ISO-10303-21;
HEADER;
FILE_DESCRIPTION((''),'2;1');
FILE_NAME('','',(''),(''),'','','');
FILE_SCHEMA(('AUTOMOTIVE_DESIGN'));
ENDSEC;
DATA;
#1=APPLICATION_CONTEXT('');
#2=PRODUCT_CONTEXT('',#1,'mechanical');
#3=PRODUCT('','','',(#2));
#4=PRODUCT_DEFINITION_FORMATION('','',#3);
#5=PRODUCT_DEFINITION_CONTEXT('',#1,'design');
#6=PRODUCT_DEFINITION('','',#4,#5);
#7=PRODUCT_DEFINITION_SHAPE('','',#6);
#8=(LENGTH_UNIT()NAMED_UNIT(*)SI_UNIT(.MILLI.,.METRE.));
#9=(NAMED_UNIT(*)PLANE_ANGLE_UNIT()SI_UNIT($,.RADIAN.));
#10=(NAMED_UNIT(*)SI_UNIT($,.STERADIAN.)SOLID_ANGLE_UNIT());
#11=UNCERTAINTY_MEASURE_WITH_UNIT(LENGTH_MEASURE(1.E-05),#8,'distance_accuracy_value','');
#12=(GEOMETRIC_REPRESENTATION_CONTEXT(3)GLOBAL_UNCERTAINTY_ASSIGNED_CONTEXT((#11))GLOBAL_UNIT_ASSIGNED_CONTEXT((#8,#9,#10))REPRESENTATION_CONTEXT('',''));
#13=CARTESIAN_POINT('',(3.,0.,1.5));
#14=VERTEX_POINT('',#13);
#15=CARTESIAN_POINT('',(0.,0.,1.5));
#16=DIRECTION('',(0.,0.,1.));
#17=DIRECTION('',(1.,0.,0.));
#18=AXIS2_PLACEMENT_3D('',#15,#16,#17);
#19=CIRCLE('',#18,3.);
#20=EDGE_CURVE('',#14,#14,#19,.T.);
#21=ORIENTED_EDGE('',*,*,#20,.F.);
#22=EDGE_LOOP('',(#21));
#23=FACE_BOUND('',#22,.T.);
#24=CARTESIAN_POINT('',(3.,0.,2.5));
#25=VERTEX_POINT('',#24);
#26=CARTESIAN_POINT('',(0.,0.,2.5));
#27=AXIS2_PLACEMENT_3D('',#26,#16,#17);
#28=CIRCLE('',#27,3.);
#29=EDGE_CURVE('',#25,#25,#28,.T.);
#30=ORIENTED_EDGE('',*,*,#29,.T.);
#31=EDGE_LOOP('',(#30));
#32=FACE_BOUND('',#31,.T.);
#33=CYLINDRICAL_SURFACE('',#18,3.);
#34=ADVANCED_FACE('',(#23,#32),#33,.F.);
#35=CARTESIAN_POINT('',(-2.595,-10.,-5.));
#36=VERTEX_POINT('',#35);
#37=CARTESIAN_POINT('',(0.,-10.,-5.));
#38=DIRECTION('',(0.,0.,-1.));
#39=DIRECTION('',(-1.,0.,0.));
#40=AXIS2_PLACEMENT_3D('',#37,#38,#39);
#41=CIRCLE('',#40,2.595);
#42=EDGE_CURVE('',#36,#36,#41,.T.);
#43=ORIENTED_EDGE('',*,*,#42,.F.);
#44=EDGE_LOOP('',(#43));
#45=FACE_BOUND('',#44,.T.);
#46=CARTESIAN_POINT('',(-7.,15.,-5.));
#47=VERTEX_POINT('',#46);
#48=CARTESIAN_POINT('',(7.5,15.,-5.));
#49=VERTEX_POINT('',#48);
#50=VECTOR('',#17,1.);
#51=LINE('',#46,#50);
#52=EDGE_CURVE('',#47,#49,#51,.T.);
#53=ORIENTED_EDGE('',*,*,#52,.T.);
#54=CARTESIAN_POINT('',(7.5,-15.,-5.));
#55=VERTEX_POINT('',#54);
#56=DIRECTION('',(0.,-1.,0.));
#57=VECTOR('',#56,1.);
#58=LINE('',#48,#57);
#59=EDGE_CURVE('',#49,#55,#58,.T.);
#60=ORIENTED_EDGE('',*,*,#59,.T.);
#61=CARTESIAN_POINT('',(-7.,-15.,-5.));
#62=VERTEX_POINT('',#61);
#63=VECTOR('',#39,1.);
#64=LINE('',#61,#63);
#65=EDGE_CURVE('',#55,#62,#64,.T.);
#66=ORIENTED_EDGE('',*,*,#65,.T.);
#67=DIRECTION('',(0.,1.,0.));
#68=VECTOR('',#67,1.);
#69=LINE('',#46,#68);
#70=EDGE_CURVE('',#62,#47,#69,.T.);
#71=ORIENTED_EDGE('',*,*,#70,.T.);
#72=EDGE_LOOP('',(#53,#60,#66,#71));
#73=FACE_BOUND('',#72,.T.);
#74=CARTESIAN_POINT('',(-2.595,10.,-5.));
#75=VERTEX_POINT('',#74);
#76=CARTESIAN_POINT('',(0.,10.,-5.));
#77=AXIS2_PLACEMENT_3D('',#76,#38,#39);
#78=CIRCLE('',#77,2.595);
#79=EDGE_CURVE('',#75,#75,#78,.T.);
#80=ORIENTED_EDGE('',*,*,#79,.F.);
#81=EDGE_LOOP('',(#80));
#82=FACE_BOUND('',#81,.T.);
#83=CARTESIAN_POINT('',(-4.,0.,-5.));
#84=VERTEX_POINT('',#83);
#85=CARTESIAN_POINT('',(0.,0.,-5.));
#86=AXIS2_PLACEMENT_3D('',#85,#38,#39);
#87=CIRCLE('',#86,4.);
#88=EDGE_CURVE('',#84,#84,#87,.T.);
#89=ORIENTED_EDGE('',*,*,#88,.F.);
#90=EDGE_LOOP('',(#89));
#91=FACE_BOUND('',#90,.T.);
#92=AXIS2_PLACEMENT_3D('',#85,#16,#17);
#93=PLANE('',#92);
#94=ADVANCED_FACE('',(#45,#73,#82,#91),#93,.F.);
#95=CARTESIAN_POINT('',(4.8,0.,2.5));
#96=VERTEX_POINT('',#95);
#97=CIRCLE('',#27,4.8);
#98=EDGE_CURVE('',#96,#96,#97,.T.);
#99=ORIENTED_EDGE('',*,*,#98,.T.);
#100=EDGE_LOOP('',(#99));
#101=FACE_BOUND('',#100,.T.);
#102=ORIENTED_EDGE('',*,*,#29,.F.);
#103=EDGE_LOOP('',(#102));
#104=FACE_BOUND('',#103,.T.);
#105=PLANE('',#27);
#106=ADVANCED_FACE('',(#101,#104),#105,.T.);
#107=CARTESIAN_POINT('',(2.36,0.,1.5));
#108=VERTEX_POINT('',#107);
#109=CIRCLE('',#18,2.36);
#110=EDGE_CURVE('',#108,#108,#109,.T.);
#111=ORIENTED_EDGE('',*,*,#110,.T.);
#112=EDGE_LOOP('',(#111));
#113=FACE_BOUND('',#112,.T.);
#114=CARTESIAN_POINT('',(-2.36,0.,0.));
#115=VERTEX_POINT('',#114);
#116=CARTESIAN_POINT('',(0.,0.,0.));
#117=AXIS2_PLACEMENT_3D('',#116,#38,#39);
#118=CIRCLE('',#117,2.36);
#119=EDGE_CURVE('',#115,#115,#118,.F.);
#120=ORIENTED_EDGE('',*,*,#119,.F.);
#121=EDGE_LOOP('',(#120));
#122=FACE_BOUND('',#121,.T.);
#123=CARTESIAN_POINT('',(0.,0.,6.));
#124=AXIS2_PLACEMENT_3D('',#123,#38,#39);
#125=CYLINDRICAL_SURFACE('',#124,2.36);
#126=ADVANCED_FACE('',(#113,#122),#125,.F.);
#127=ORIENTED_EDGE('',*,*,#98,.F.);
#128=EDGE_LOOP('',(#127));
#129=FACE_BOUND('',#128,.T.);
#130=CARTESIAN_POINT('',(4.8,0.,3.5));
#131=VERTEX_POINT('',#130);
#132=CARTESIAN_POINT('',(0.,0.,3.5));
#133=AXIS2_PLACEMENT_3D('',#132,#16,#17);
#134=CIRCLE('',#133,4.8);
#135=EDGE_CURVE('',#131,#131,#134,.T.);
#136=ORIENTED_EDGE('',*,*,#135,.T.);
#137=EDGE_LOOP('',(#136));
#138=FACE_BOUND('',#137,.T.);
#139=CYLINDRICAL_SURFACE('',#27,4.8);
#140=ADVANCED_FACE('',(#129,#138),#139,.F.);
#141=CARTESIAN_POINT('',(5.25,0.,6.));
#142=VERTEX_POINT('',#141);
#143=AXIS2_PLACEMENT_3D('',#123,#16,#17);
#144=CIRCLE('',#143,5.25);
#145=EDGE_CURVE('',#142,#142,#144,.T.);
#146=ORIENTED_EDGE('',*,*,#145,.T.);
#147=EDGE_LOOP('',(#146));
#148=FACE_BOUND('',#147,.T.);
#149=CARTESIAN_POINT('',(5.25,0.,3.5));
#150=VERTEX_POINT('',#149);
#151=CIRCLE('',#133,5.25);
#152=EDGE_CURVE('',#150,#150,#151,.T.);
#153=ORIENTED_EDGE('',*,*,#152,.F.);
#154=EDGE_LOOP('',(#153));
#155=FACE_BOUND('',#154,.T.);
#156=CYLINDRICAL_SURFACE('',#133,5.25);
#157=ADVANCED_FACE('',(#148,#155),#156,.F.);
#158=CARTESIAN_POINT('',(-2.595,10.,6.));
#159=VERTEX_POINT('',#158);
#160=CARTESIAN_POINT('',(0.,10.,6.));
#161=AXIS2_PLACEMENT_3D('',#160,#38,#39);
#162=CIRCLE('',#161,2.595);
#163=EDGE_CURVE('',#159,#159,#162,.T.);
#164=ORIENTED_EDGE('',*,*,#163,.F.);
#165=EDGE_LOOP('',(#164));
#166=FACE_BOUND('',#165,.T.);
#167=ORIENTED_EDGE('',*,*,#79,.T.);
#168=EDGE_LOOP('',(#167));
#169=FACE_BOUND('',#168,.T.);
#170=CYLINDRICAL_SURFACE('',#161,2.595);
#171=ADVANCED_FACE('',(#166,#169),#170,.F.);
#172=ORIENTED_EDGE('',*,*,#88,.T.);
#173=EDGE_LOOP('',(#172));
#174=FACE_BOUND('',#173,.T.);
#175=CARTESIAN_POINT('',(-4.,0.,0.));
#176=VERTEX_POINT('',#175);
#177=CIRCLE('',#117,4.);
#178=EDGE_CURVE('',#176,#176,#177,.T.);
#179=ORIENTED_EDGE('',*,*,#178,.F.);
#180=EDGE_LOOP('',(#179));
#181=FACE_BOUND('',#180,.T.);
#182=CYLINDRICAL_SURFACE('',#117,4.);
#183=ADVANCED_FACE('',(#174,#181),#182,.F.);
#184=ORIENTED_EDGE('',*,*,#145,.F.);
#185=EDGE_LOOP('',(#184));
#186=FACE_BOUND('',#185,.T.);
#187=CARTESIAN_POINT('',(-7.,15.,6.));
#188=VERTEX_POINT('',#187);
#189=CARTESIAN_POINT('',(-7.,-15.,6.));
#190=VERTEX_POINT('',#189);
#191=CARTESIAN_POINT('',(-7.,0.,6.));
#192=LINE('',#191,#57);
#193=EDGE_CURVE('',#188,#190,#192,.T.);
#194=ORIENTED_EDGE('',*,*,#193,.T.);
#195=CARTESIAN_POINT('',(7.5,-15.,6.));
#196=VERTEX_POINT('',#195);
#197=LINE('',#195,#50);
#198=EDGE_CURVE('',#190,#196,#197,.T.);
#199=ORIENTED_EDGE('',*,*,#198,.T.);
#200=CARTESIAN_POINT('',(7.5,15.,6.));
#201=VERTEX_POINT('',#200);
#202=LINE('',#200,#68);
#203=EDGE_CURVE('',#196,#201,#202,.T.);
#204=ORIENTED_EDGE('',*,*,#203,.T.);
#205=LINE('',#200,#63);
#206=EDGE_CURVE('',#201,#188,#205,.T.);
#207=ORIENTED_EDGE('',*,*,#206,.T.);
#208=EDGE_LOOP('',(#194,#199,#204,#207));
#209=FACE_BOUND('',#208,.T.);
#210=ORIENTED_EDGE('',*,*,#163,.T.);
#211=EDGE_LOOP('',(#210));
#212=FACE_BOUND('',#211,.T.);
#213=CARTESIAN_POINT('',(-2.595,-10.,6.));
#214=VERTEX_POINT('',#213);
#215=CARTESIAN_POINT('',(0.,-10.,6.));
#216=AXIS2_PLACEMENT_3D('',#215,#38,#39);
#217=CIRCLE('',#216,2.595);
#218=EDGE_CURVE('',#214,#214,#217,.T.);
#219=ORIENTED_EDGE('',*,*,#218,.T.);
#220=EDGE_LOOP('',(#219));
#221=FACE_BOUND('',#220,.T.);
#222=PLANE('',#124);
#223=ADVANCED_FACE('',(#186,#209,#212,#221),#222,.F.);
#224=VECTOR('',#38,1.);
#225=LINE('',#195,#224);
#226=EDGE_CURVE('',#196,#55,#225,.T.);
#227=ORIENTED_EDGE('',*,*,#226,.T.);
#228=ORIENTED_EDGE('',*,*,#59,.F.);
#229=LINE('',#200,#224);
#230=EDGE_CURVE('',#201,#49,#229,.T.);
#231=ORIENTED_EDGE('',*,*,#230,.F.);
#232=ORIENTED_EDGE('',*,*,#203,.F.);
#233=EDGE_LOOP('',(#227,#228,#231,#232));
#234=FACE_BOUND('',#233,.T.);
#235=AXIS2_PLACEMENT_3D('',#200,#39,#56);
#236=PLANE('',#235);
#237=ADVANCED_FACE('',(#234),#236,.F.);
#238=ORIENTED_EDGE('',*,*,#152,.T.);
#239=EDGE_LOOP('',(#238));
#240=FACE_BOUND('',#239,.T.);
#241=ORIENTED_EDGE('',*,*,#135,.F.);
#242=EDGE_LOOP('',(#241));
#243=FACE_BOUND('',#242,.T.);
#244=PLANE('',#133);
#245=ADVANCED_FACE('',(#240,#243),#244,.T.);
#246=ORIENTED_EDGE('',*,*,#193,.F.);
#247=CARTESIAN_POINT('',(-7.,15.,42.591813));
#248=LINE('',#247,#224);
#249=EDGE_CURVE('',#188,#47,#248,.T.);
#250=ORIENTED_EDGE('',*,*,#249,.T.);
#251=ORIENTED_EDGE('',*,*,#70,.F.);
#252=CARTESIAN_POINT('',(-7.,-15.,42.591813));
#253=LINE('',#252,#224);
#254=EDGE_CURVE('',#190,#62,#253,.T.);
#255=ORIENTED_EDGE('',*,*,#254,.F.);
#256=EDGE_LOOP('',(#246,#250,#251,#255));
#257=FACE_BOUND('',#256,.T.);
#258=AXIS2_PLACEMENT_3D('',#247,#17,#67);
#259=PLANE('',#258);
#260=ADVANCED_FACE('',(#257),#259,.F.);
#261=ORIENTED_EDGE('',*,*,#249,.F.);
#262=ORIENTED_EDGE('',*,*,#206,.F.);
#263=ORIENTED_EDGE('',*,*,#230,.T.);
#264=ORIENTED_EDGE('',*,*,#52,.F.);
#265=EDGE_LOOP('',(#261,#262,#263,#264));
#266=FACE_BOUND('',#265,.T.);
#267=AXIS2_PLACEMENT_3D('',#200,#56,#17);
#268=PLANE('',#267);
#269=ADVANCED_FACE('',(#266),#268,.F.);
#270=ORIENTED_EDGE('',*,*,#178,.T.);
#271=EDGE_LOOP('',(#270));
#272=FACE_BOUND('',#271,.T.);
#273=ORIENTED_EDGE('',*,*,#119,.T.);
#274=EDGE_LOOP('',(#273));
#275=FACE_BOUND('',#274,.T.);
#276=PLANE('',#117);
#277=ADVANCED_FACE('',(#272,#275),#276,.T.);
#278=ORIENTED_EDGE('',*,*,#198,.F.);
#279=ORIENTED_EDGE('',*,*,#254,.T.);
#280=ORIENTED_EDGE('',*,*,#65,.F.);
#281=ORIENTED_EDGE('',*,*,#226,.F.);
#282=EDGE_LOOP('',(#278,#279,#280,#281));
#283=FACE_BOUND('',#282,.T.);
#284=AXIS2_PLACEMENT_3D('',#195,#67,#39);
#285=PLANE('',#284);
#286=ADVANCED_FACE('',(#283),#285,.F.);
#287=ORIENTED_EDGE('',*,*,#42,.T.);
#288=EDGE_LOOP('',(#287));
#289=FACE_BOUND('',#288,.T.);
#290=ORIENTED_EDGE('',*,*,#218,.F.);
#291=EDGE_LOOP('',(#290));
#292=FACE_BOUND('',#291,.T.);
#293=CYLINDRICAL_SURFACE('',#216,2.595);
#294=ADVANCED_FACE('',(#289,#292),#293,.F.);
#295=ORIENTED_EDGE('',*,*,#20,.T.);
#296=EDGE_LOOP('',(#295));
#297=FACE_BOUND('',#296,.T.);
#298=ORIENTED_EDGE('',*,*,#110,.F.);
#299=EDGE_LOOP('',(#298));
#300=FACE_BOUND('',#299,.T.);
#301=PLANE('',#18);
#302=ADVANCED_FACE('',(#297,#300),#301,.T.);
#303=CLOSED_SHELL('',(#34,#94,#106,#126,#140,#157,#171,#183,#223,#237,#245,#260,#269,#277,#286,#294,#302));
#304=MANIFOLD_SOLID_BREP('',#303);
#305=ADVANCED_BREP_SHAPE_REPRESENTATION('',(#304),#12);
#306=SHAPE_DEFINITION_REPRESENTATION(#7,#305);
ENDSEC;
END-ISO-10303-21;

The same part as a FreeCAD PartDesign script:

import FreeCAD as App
import Part
import Sketcher
Q = App.Units.Quantity

doc = App.newDocument("Part")
body = doc.addObject("PartDesign::Body", "Body")

# Sketch on XY plane
sketch1 = doc.addObject("Sketcher::SketchObject", "Sketch")
body.addObject(sketch1)
sketch1.AttachmentSupport = (doc.XY_Plane, [""])
sketch1.MapMode = "FlatFace"
sketch1.addGeometry([
    Part.LineSegment(App.Vector(-8, 15, 0), App.Vector(-8, -15, 0)),
    Part.LineSegment(App.Vector(-8, -15, 0), App.Vector(8, -15, 0)),
    Part.LineSegment(App.Vector(8, -15, 0), App.Vector(8, 15, 0)),
    Part.LineSegment(App.Vector(8, 15, 0), App.Vector(-8, 15, 0)),
], False)
sketch1.addConstraint([
    Sketcher.Constraint("Coincident", 0, 2, 1, 1),
    Sketcher.Constraint("Coincident", 1, 2, 2, 1),
    Sketcher.Constraint("Coincident", 2, 2, 3, 1),
    Sketcher.Constraint("Coincident", 3, 2, 0, 1),
    Sketcher.Constraint("Vertical", 0),
    Sketcher.Constraint("Horizontal", 1),
    Sketcher.Constraint("Vertical", 2),
    Sketcher.Constraint("Horizontal", 3),
    Sketcher.Constraint("Symmetric", 0, 2, 2, 2, -1, 1),
    Sketcher.Constraint("DistanceX", 1, 1, 1, 2, Q("15 mm")),
    Sketcher.Constraint("DistanceY", 0, 2, 0, 1, Q("30 mm")),
])
pad1 = doc.addObject("PartDesign::Pad", "Pad")
body.addObject(pad1)
pad1.Profile = sketch1
pad1.Length = 6

# Sketch on XY plane
sketch2 = doc.addObject("Sketcher::SketchObject", "Sketch001")
body.addObject(sketch2)
sketch2.AttachmentSupport = (doc.XY_Plane, [""])
sketch2.MapMode = "FlatFace"
sketch2.AttachmentOffset = App.Placement(App.Vector(0, 0, 6), App.Rotation())
sketch2.addGeometry(Part.Circle(App.Vector(0, 0, 0), App.Vector(0, 0, 1), 5), False)
sketch2.addConstraint([
    Sketcher.Constraint("Coincident", 0, 3, -1, 1),
    Sketcher.Constraint("Diameter", 0, Q("10.5 mm")),
])
pocket1 = doc.addObject("PartDesign::Pocket", "Pocket")
body.addObject(pocket1)
pocket1.Profile = sketch2
pocket1.Length = 2.5

# Sketch on XY plane
sketch3 = doc.addObject("Sketcher::SketchObject", "Sketch002")
body.addObject(sketch3)
sketch3.AttachmentSupport = (doc.XY_Plane, [""])
sketch3.MapMode = "FlatFace"
sketch3.AttachmentOffset = App.Placement(App.Vector(0, 0, 3.5), App.Rotation())
sketch3.addGeometry(Part.Circle(App.Vector(0, 0, 0), App.Vector(0, 0, 1), 4.8), False)
sketch3.addConstraint([
    Sketcher.Constraint("Coincident", 0, 3, -1, 1),
    Sketcher.Constraint("Diameter", 0, Q("9.6 mm")),
])
pocket2 = doc.addObject("PartDesign::Pocket", "Pocket001")
body.addObject(pocket2)
pocket2.Profile = sketch3
pocket2.Length = 1

# Sketch on XY plane
sketch4 = doc.addObject("Sketcher::SketchObject", "Sketch003")
body.addObject(sketch4)
sketch4.AttachmentSupport = (doc.XY_Plane, [""])
sketch4.MapMode = "FlatFace"
sketch4.AttachmentOffset = App.Placement(App.Vector(0, 0, 2.5), App.Rotation())
sketch4.addGeometry(Part.Circle(App.Vector(0, 0, 0), App.Vector(0, 0, 1), 2.4), False)
sketch4.addConstraint([
    Sketcher.Constraint("Coincident", 0, 3, -1, 1),
    Sketcher.Constraint("Diameter", 0, Q("4.72 mm")),
])
pocket3 = doc.addObject("PartDesign::Pocket", "Pocket002")
body.addObject(pocket3)
pocket3.Profile = sketch4
pocket3.Type = "ThroughAll"
pocket3.Midplane = True

# Sketch on XY plane
sketch5 = doc.addObject("Sketcher::SketchObject", "Sketch004")
body.addObject(sketch5)
sketch5.AttachmentSupport = (doc.XY_Plane, [""])
sketch5.MapMode = "FlatFace"
sketch5.addGeometry([
    Part.LineSegment(App.Vector(-7, -92, 0), App.Vector(-7, 92, 0)),
    Part.LineSegment(App.Vector(-7, 92, 0), App.Vector(-160, 92, 0)),
    Part.LineSegment(App.Vector(-160, 92, 0), App.Vector(-160, -92, 0)),
    Part.LineSegment(App.Vector(-160, -92, 0), App.Vector(-7, -92, 0)),
], False)
sketch5.addConstraint([
    Sketcher.Constraint("Coincident", 0, 2, 1, 1),
    Sketcher.Constraint("Coincident", 1, 2, 2, 1),
    Sketcher.Constraint("Coincident", 2, 2, 3, 1),
    Sketcher.Constraint("Coincident", 3, 2, 0, 1),
    Sketcher.Constraint("Vertical", 0),
    Sketcher.Constraint("Horizontal", 1),
    Sketcher.Constraint("Vertical", 2),
    Sketcher.Constraint("Horizontal", 3),
    Sketcher.Constraint("DistanceX", 0, 2, -1, 1, Q("7 mm")),
    Sketcher.Constraint("DistanceX", 1, 2, 1, 1, Q("153.281657 mm")),
    Sketcher.Constraint("DistanceY", 0, 1, 0, 2, Q("183.281657 mm")),
    Sketcher.Constraint("DistanceY", -1, 1, 0, 2, Q("91.640828 mm")),
])
pocket4 = doc.addObject("PartDesign::Pocket", "Pocket003")
body.addObject(pocket4)
pocket4.Profile = sketch5
pocket4.Type = "ThroughAll"
pocket4.Midplane = True

# Sketch on XY plane
sketch6 = doc.addObject("Sketcher::SketchObject", "Sketch005")
body.addObject(sketch6)
sketch6.AttachmentSupport = (doc.XY_Plane, [""])
sketch6.MapMode = "FlatFace"
sketch6.addGeometry([
    Part.LineSegment(App.Vector(8, 15, 0), App.Vector(8, -15, 0)),
    Part.LineSegment(App.Vector(8, -15, 0), App.Vector(-7, -15, 0)),
    Part.LineSegment(App.Vector(-7, -15, 0), App.Vector(-7, 15, 0)),
    Part.LineSegment(App.Vector(-7, 15, 0), App.Vector(8, 15, 0)),
], False)
sketch6.addConstraint([
    Sketcher.Constraint("Coincident", 0, 2, 1, 1),
    Sketcher.Constraint("Coincident", 1, 2, 2, 1),
    Sketcher.Constraint("Coincident", 2, 2, 3, 1),
    Sketcher.Constraint("Coincident", 3, 2, 0, 1),
    Sketcher.Constraint("Vertical", 0),
    Sketcher.Constraint("Horizontal", 1),
    Sketcher.Constraint("Vertical", 2),
    Sketcher.Constraint("Horizontal", 3),
    Sketcher.Constraint("DistanceY", 0, 2, 0, 1, Q("30 mm")),
    Sketcher.Constraint("DistanceX", 1, 2, 1, 1, Q("14.5 mm")),
    Sketcher.Constraint("DistanceY", 0, 2, -1, 1, Q("15 mm")),
    Sketcher.Constraint("DistanceX", 1, 2, -1, 1, Q("7 mm")),
])
pad2 = doc.addObject("PartDesign::Pad", "Pad001")
body.addObject(pad2)
pad2.Profile = sketch6
pad2.Length = 5
pad2.Reversed = True

# Sketch on XY plane
sketch7 = doc.addObject("Sketcher::SketchObject", "Sketch006")
body.addObject(sketch7)
sketch7.AttachmentSupport = (doc.XY_Plane, [""])
sketch7.MapMode = "FlatFace"
sketch7.AttachmentOffset = App.Placement(App.Vector(0, 0, -5), App.Rotation())
sketch7.addGeometry(Part.Circle(App.Vector(0, 0, 0), App.Vector(0, 0, 1), 4), False)
sketch7.addConstraint([
    Sketcher.Constraint("Coincident", 0, 3, -1, 1),
    Sketcher.Constraint("Diameter", 0, Q("8 mm")),
])
pocket5 = doc.addObject("PartDesign::Pocket", "Pocket004")
body.addObject(pocket5)
pocket5.Profile = sketch7
pocket5.Length = 5
pocket5.Reversed = True

# Sketch on XY plane
sketch8 = doc.addObject("Sketcher::SketchObject", "Sketch007")
body.addObject(sketch8)
sketch8.AttachmentSupport = (doc.XY_Plane, [""])
sketch8.MapMode = "FlatFace"
sketch8.AttachmentOffset = App.Placement(App.Vector(0, 0, -5), App.Rotation())
sketch8.addGeometry([
    Part.Circle(App.Vector(0, -10, 0), App.Vector(0, 0, 1), 2.6),
    Part.Circle(App.Vector(0, 10, 0), App.Vector(0, 0, 1), 2.6),
], False)
sketch8.addConstraint([
    Sketcher.Constraint("Equal", 0, 1),
    Sketcher.Constraint("Symmetric", 0, 3, 1, 3, -1, 1),
    Sketcher.Constraint("PointOnObject", 0, 3, -2),
    Sketcher.Constraint("Diameter", 0, Q("5.19 mm")),
    Sketcher.Constraint("DistanceY", 0, 3, -1, 1, Q("10 mm")),
])
pocket6 = doc.addObject("PartDesign::Pocket", "Pocket005")
body.addObject(pocket6)
pocket6.Profile = sketch8
pocket6.Type = "ThroughAll"
pocket6.Reversed = True

# Sketch on XY plane
sketch9 = doc.addObject("Sketcher::SketchObject", "Sketch008")
body.addObject(sketch9)
sketch9.AttachmentSupport = (doc.XY_Plane, [""])
sketch9.MapMode = "FlatFace"
sketch9.AttachmentOffset = App.Placement(App.Vector(0, 0, 2.5), App.Rotation())
sketch9.addGeometry(Part.Circle(App.Vector(0, 0, 0), App.Vector(0, 0, 1), 3), False)
sketch9.addConstraint([
    Sketcher.Constraint("Coincident", 0, 3, -1, 1),
    Sketcher.Constraint("Diameter", 0, Q("6 mm")),
])
pocket7 = doc.addObject("PartDesign::Pocket", "Pocket006")
body.addObject(pocket7)
pocket7.Profile = sketch9
pocket7.Length = 1

doc.recompute()
